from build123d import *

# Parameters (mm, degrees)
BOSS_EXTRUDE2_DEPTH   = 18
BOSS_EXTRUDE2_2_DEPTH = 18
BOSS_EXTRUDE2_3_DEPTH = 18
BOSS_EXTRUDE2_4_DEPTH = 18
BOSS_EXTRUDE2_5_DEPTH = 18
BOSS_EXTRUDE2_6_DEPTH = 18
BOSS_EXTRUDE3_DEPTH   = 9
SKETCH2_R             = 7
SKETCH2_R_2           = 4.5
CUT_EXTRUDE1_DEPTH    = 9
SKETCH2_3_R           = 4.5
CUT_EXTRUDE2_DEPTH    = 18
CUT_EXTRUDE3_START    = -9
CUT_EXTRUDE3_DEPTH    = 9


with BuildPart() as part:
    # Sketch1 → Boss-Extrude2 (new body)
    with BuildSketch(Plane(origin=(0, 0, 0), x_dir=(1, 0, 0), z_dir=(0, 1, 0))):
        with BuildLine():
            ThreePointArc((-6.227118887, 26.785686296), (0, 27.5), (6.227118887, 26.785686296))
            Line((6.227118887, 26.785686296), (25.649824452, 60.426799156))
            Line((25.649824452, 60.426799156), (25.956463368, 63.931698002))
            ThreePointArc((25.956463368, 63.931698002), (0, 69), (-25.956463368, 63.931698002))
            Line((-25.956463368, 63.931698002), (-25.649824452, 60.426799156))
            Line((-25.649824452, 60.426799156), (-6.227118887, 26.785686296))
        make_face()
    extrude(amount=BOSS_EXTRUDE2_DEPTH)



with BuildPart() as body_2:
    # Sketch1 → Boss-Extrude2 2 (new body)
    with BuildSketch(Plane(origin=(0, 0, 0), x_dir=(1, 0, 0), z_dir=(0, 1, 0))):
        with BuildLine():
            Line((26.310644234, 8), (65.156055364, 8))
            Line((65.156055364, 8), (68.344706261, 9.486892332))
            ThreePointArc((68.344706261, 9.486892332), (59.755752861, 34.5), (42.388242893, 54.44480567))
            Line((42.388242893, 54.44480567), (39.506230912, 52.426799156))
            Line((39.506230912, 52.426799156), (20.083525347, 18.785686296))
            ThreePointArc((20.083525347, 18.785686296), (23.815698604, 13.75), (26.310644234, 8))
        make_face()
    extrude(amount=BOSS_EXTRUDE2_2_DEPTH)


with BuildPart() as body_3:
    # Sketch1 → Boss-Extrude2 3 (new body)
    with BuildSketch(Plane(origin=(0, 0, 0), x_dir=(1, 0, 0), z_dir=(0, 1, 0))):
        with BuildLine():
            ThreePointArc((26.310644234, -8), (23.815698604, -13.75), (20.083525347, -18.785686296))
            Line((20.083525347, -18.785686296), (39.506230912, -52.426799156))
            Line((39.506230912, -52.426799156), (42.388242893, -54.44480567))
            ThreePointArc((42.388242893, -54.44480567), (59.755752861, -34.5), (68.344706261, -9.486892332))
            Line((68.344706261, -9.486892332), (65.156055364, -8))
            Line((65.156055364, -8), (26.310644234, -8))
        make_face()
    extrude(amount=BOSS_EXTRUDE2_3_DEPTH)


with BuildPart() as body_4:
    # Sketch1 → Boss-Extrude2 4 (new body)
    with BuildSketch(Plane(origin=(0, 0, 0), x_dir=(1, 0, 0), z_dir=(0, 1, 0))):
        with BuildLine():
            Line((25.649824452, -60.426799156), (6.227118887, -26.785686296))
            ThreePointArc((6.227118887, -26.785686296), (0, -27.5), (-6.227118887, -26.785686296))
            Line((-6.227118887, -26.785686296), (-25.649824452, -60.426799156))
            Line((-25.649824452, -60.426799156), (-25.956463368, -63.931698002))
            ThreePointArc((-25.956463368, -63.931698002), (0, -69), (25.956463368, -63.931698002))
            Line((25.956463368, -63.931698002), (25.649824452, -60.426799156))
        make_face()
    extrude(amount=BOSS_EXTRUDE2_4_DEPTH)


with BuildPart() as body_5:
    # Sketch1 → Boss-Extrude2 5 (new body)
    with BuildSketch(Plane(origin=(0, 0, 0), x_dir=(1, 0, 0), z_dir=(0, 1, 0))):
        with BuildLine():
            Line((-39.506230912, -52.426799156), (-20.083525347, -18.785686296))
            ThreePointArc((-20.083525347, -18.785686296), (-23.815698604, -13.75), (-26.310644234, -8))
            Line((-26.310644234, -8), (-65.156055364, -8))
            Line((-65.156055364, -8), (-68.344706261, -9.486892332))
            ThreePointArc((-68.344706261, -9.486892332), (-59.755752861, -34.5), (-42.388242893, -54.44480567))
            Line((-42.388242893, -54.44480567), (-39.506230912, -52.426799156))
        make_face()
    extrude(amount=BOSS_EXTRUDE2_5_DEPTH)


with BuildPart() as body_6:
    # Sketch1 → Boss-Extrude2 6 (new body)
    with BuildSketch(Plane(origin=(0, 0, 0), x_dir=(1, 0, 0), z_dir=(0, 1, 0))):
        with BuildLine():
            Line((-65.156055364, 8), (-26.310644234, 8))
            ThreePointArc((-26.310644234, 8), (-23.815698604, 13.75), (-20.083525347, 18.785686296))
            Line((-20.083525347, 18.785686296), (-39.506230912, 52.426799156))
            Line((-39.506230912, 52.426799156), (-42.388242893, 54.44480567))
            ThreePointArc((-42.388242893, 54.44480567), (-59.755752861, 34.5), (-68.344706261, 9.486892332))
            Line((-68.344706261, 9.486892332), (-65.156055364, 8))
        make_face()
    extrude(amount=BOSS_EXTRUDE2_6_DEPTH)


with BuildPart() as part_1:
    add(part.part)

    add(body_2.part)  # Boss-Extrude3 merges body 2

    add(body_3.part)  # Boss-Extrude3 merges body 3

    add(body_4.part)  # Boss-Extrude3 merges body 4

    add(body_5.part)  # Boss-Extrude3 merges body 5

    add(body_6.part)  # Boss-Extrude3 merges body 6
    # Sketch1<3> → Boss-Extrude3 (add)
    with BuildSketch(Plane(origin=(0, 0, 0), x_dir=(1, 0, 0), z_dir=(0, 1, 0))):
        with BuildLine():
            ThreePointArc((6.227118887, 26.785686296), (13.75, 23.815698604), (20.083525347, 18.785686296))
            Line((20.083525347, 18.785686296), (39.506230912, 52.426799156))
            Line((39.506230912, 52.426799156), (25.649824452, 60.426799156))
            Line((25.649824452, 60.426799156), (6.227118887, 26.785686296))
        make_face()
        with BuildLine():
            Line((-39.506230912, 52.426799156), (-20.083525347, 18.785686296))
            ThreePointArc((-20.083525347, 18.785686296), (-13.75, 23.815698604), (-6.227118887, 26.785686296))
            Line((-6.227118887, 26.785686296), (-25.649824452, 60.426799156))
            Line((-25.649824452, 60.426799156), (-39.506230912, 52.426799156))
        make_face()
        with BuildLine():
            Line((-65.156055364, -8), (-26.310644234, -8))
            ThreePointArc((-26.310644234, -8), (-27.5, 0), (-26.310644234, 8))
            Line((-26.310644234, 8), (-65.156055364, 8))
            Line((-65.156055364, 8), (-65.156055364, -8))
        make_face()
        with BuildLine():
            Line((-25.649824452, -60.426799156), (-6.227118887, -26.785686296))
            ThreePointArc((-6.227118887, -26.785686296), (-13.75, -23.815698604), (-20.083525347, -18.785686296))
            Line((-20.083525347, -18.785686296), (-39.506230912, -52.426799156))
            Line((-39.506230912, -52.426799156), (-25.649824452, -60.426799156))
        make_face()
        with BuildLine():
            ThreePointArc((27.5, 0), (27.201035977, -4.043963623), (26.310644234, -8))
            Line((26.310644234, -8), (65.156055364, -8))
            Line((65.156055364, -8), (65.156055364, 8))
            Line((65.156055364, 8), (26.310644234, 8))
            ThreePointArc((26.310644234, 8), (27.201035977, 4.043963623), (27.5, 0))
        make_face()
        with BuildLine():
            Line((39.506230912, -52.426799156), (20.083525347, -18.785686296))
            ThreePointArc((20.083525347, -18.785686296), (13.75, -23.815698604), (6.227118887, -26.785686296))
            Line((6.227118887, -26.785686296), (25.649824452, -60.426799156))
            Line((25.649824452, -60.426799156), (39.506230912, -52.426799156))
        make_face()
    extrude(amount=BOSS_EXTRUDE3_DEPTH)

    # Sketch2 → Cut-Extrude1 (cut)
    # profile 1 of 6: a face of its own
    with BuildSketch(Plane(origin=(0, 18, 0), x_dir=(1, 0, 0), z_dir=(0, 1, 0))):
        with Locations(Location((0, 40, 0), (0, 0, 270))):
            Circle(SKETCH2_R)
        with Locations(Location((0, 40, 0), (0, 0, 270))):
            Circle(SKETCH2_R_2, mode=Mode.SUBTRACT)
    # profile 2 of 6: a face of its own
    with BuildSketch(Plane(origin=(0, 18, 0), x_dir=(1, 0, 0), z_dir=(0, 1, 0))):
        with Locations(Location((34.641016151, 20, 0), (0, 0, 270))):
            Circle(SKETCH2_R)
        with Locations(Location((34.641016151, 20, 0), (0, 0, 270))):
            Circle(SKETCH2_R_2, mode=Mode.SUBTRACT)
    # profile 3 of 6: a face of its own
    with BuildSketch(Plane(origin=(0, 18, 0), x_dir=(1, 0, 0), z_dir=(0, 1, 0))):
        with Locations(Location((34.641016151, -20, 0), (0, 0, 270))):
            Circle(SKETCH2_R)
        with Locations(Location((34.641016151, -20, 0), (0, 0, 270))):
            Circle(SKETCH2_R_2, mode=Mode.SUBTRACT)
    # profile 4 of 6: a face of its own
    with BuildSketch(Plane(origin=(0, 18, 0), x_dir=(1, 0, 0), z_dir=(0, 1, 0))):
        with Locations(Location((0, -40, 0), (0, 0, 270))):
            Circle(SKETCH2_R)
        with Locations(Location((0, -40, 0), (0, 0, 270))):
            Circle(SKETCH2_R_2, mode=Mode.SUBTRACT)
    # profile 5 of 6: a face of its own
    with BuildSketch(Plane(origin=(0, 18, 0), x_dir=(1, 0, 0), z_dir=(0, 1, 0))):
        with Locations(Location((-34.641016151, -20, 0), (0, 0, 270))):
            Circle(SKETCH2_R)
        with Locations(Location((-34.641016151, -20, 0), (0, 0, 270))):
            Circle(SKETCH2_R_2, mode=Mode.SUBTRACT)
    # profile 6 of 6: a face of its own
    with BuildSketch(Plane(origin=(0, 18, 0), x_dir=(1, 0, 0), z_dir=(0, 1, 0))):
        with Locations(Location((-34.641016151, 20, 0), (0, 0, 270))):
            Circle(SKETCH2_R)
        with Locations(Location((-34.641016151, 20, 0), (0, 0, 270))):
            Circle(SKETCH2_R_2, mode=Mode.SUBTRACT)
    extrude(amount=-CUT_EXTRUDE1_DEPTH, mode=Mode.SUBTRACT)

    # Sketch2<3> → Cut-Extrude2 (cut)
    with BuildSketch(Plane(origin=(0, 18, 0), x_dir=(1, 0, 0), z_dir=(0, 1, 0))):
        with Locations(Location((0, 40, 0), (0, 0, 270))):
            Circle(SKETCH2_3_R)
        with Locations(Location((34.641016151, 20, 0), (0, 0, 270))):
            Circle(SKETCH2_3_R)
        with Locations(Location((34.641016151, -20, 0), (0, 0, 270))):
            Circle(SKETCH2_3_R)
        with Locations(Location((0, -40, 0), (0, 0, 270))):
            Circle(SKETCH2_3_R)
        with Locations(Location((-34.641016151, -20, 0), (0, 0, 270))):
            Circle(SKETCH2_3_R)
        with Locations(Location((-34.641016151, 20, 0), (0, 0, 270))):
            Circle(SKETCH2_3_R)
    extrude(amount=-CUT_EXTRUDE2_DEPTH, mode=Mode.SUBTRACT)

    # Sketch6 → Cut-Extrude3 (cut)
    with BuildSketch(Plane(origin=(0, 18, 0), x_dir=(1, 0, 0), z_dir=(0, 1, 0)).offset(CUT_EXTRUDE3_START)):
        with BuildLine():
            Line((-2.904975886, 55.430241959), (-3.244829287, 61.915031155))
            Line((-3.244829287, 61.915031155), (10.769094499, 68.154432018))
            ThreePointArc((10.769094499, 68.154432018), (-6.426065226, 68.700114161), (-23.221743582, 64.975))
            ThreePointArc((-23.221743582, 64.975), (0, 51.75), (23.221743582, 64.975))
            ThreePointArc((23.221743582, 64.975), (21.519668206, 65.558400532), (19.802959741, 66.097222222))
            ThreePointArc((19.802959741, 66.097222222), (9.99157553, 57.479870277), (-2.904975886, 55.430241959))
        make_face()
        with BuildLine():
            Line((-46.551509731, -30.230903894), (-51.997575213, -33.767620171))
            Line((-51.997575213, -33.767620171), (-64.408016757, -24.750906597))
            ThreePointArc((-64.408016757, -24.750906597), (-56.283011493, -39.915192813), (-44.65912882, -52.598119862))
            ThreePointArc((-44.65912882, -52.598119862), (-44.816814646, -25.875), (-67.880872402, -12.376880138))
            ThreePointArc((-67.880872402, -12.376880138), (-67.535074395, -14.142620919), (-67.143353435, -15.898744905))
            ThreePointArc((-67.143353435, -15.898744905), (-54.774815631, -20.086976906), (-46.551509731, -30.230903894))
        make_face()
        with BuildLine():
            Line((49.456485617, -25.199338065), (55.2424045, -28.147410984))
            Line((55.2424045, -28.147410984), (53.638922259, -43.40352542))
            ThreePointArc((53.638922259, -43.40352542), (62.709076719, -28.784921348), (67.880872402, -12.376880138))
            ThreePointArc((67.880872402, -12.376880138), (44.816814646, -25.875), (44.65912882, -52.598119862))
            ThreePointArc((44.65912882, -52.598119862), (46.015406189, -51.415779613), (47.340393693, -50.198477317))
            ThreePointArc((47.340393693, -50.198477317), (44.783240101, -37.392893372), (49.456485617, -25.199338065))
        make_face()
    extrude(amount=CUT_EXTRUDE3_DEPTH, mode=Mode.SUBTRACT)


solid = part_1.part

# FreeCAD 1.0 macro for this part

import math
import FreeCAD as App
import Part
import Sketcher
from FreeCAD import Vector
Q = App.Units.Quantity

doc = App.newDocument("Part")
body = doc.addObject("PartDesign::Body", "Body")

sketch1 = body.newObject("Sketcher::SketchObject", "Sketch")
sketch1.AttachmentSupport = (doc.getObject("XZ_Plane"), [""])
sketch1.MapMode = "FlatFace"
sketch1.addGeometry([
    Part.ArcOfCircle(Part.Circle(Vector(0, 0, 0), Vector(0, 0, 1), 27.5), math.radians(-103), math.radians(-77)),
    Part.LineSegment(Vector(6.2, -26.8, 0), Vector(25.6, -60.4, 0)),
    Part.LineSegment(Vector(25.6, -60.4, 0), Vector(26, -63.9, 0)),
    Part.ArcOfCircle(Part.Circle(Vector(0, 0, 0), Vector(0, 0, 1), 69), math.radians(-112), math.radians(-68)),
    Part.LineSegment(Vector(-26, -63.9, 0), Vector(-25.6, -60.4, 0)),
    Part.LineSegment(Vector(-25.6, -60.4, 0), Vector(-6.2, -26.8, 0)),
], False)
sketch1.addConstraint([
    Sketcher.Constraint("Coincident", 0, 2, 1, 1),
    Sketcher.Constraint("Coincident", 1, 2, 2, 1),
    Sketcher.Constraint("Coincident", 2, 2, 3, 2),
    Sketcher.Constraint("Coincident", 3, 1, 4, 1),
    Sketcher.Constraint("Coincident", 4, 2, 5, 1),
    Sketcher.Constraint("Coincident", 5, 2, 0, 1),
    Sketcher.Constraint("Coincident", 0, 3, -1, 1),
    Sketcher.Constraint("Coincident", 3, 3, -1, 1),
    Sketcher.Constraint("Symmetric", 1, 2, 4, 2, -2),
    Sketcher.Constraint("Horizontal", 2, 2, 3, 1),
    Sketcher.Constraint("Horizontal", 0, 2, 5, 2),
    Sketcher.Constraint("Radius", 3, 69.0),
    Sketcher.Constraint("Radius", 0, 27.5),
    Sketcher.Constraint("Angle", 1, Q("-60 deg")),
    Sketcher.Constraint("Angle", 2, Q("-85 deg")),
    Sketcher.Constraint("DistanceY", 1, 2, -1, 1, 60.426799),
    Sketcher.Constraint("DistanceY", 2, 2, -1, 1, 63.931698),
])
pad1 = body.newObject("PartDesign::Pad", "Pad")
pad1.Profile = sketch1
pad1.Length = 18
pad1.Reversed = True
body2 = doc.addObject("PartDesign::Body", "Body001")

sketch2 = body2.newObject("Sketcher::SketchObject", "Sketch001")
sketch2.AttachmentSupport = (doc.getObject("XZ_Plane001"), [""])
sketch2.MapMode = "FlatFace"
sketch2.addGeometry([
    Part.LineSegment(Vector(26.3, -8, 0), Vector(65.2, -8, 0)),
    Part.LineSegment(Vector(65.2, -8, 0), Vector(68.3, -9.5, 0)),
    Part.ArcOfCircle(Part.Circle(Vector(0, 0, 0), Vector(0, 0, 1), 69), math.radians(-52), math.radians(-8)),
    Part.LineSegment(Vector(42.4, -54.4, 0), Vector(39.5, -52.4, 0)),
    Part.LineSegment(Vector(39.5, -52.4, 0), Vector(20.1, -18.8, 0)),
    Part.ArcOfCircle(Part.Circle(Vector(0, 0, 0), Vector(0, 0, 1), 27.5), math.radians(-43), math.radians(-17)),
], False)
sketch2.addConstraint([
    Sketcher.Constraint("Coincident", 0, 2, 1, 1),
    Sketcher.Constraint("Coincident", 1, 2, 2, 2),
    Sketcher.Constraint("Coincident", 2, 1, 3, 1),
    Sketcher.Constraint("Coincident", 3, 2, 4, 1),
    Sketcher.Constraint("Coincident", 4, 2, 5, 1),
    Sketcher.Constraint("Coincident", 5, 2, 0, 1),
    Sketcher.Constraint("Horizontal", 0),
    Sketcher.Constraint("Coincident", 2, 3, -1, 1),
    Sketcher.Constraint("Coincident", 5, 3, -1, 1),
    Sketcher.Constraint("Equal", 1, 3),
    Sketcher.Constraint("Radius", 2, 69.0),
    Sketcher.Constraint("Radius", 5, 27.5),
    Sketcher.Constraint("Angle", 1, Q("-25 deg")),
    Sketcher.Constraint("Angle", 3, Q("145 deg")),
    Sketcher.Constraint("Angle", 4, Q("120 deg")),
    Sketcher.Constraint("DistanceY", 0, 2, -1, 1, 8.0),
    Sketcher.Constraint("DistanceX", 0, 1, 0, 2, 38.845411),
    Sketcher.Constraint("DistanceY", 3, 2, -1, 1, 52.426799),
])
pad2 = body2.newObject("PartDesign::Pad", "Pad001")
pad2.Profile = sketch2
pad2.Length = 18
pad2.Reversed = True
body3 = doc.addObject("PartDesign::Body", "Body002")

sketch3 = body3.newObject("Sketcher::SketchObject", "Sketch002")
sketch3.AttachmentSupport = (doc.getObject("XZ_Plane002"), [""])
sketch3.MapMode = "FlatFace"
sketch3.addGeometry([
    Part.ArcOfCircle(Part.Circle(Vector(0, 0, 0), Vector(0, 0, 1), 27.5), math.radians(17), math.radians(43)),
    Part.LineSegment(Vector(20.1, 18.8, 0), Vector(39.5, 52.4, 0)),
    Part.LineSegment(Vector(39.5, 52.4, 0), Vector(42.4, 54.4, 0)),
    Part.ArcOfCircle(Part.Circle(Vector(0, 0, 0), Vector(0, 0, 1), 69), math.radians(8), math.radians(52)),
    Part.LineSegment(Vector(68.3, 9.5, 0), Vector(65.2, 8, 0)),
    Part.LineSegment(Vector(65.2, 8, 0), Vector(26.3, 8, 0)),
], False)
sketch3.addConstraint([
    Sketcher.Constraint("Coincident", 0, 2, 1, 1),
    Sketcher.Constraint("Coincident", 1, 2, 2, 1),
    Sketcher.Constraint("Coincident", 2, 2, 3, 2),
    Sketcher.Constraint("Coincident", 3, 1, 4, 1),
    Sketcher.Constraint("Coincident", 4, 2, 5, 1),
    Sketcher.Constraint("Coincident", 5, 2, 0, 1),
    Sketcher.Constraint("Horizontal", 5),
    Sketcher.Constraint("Coincident", 0, 3, -1, 1),
    Sketcher.Constraint("Coincident", 3, 3, -1, 1),
    Sketcher.Constraint("Equal", 2, 4),
    Sketcher.Constraint("Radius", 3, 69.0),
    Sketcher.Constraint("Radius", 0, 27.5),
    Sketcher.Constraint("Angle", 1, Q("60 deg")),
    Sketcher.Constraint("Angle", 2, Q("35 deg")),
    Sketcher.Constraint("Angle", 4, Q("-155 deg")),
    Sketcher.Constraint("DistanceY", -1, 1, 4, 2, 8.0),
    Sketcher.Constraint("DistanceX", 5, 2, 5, 1, 38.845411),
    Sketcher.Constraint("DistanceY", -1, 1, 1, 2, 52.426799),
])
pad3 = body3.newObject("PartDesign::Pad", "Pad002")
pad3.Profile = sketch3
pad3.Length = 18
pad3.Reversed = True
body4 = doc.addObject("PartDesign::Body", "Body003")

sketch4 = body4.newObject("Sketcher::SketchObject", "Sketch003")
sketch4.AttachmentSupport = (doc.getObject("XZ_Plane003"), [""])
sketch4.MapMode = "FlatFace"
sketch4.addGeometry([
    Part.LineSegment(Vector(25.6, 60.4, 0), Vector(6.2, 26.8, 0)),
    Part.ArcOfCircle(Part.Circle(Vector(0, 0, 0), Vector(0, 0, 1), 27.5), math.radians(77), math.radians(103)),
    Part.LineSegment(Vector(-6.2, 26.8, 0), Vector(-25.6, 60.4, 0)),
    Part.LineSegment(Vector(-25.6, 60.4, 0), Vector(-26, 63.9, 0)),
    Part.ArcOfCircle(Part.Circle(Vector(0, 0, 0), Vector(0, 0, 1), 69), math.radians(68), math.radians(112)),
    Part.LineSegment(Vector(26, 63.9, 0), Vector(25.6, 60.4, 0)),
], False)
sketch4.addConstraint([
    Sketcher.Constraint("Coincident", 0, 2, 1, 1),
    Sketcher.Constraint("Coincident", 1, 2, 2, 1),
    Sketcher.Constraint("Coincident", 2, 2, 3, 1),
    Sketcher.Constraint("Coincident", 3, 2, 4, 2),
    Sketcher.Constraint("Coincident", 4, 1, 5, 1),
    Sketcher.Constraint("Coincident", 5, 2, 0, 1),
    Sketcher.Constraint("Coincident", 1, 3, -1, 1),
    Sketcher.Constraint("Coincident", 4, 3, -1, 1),
    Sketcher.Constraint("Symmetric", 2, 2, 5, 2, -2),
    Sketcher.Constraint("Horizontal", 0, 2, 1, 2),
    Sketcher.Constraint("Horizontal", 3, 2, 4, 1),
    Sketcher.Constraint("Radius", 4, 69.0),
    Sketcher.Constraint("Radius", 1, 27.5),
    Sketcher.Constraint("Angle", 0, Q("-120 deg")),
    Sketcher.Constraint("Angle", 3, Q("95 deg")),
    Sketcher.Constraint("DistanceY", -1, 1, 2, 2, 60.426799),
    Sketcher.Constraint("DistanceY", -1, 1, 3, 2, 63.931698),
])
pad4 = body4.newObject("PartDesign::Pad", "Pad003")
pad4.Profile = sketch4
pad4.Length = 18
pad4.Reversed = True
body5 = doc.addObject("PartDesign::Body", "Body004")

sketch5 = body5.newObject("Sketcher::SketchObject", "Sketch004")
sketch5.AttachmentSupport = (doc.getObject("XZ_Plane004"), [""])
sketch5.MapMode = "FlatFace"
sketch5.addGeometry([
    Part.LineSegment(Vector(-39.5, 52.4, 0), Vector(-20.1, 18.8, 0)),
    Part.ArcOfCircle(Part.Circle(Vector(0, 0, 0), Vector(0, 0, 1), 27.5), math.radians(137), math.radians(163)),
    Part.LineSegment(Vector(-26.3, 8, 0), Vector(-65.2, 8, 0)),
    Part.LineSegment(Vector(-65.2, 8, 0), Vector(-68.3, 9.5, 0)),
    Part.ArcOfCircle(Part.Circle(Vector(0, 0, 0), Vector(0, 0, 1), 69), math.radians(128), math.radians(172)),
    Part.LineSegment(Vector(-42.4, 54.4, 0), Vector(-39.5, 52.4, 0)),
], False)
sketch5.addConstraint([
    Sketcher.Constraint("Coincident", 0, 2, 1, 1),
    Sketcher.Constraint("Coincident", 1, 2, 2, 1),
    Sketcher.Constraint("Coincident", 2, 2, 3, 1),
    Sketcher.Constraint("Coincident", 3, 2, 4, 2),
    Sketcher.Constraint("Coincident", 4, 1, 5, 1),
    Sketcher.Constraint("Coincident", 5, 2, 0, 1),
    Sketcher.Constraint("Horizontal", 2),
    Sketcher.Constraint("Coincident", 1, 3, -1, 1),
    Sketcher.Constraint("Coincident", 4, 3, -1, 1),
    Sketcher.Constraint("Equal", 3, 5),
    Sketcher.Constraint("Radius", 4, 69.0),
    Sketcher.Constraint("Radius", 1, 27.5),
    Sketcher.Constraint("Angle", 0, Q("-60 deg")),
    Sketcher.Constraint("Angle", 3, Q("155 deg")),
    Sketcher.Constraint("Angle", 5, Q("-35 deg")),
    Sketcher.Constraint("DistanceY", -1, 1, 1, 2, 8.0),
    Sketcher.Constraint("DistanceX", 2, 2, 2, 1, 38.845411),
    Sketcher.Constraint("DistanceY", -1, 1, 5, 2, 52.426799),
])
pad5 = body5.newObject("PartDesign::Pad", "Pad004")
pad5.Profile = sketch5
pad5.Length = 18
pad5.Reversed = True
body6 = doc.addObject("PartDesign::Body", "Body005")

sketch6 = body6.newObject("Sketcher::SketchObject", "Sketch005")
sketch6.AttachmentSupport = (doc.getObject("XZ_Plane005"), [""])
sketch6.MapMode = "FlatFace"
sketch6.addGeometry([
    Part.LineSegment(Vector(-65.2, -8, 0), Vector(-26.3, -8, 0)),
    Part.ArcOfCircle(Part.Circle(Vector(0, 0, 0), Vector(0, 0, 1), 27.5), math.radians(-163), math.radians(-137)),
    Part.LineSegment(Vector(-20.1, -18.8, 0), Vector(-39.5, -52.4, 0)),
    Part.LineSegment(Vector(-39.5, -52.4, 0), Vector(-42.4, -54.4, 0)),
    Part.ArcOfCircle(Part.Circle(Vector(0, 0, 0), Vector(0, 0, 1), 69), math.radians(-172), math.radians(-128)),
    Part.LineSegment(Vector(-68.3, -9.5, 0), Vector(-65.2, -8, 0)),
], False)
sketch6.addConstraint([
    Sketcher.Constraint("Coincident", 0, 2, 1, 1),
    Sketcher.Constraint("Coincident", 1, 2, 2, 1),
    Sketcher.Constraint("Coincident", 2, 2, 3, 1),
    Sketcher.Constraint("Coincident", 3, 2, 4, 2),
    Sketcher.Constraint("Coincident", 4, 1, 5, 1),
    Sketcher.Constraint("Coincident", 5, 2, 0, 1),
    Sketcher.Constraint("Horizontal", 0),
    Sketcher.Constraint("Coincident", 1, 3, -1, 1),
    Sketcher.Constraint("Coincident", 4, 3, -1, 1),
    Sketcher.Constraint("Equal", 3, 5),
    Sketcher.Constraint("Radius", 4, 69.0),
    Sketcher.Constraint("Radius", 1, 27.5),
    Sketcher.Constraint("Angle", 2, Q("-120 deg")),
    Sketcher.Constraint("Angle", 3, Q("-145 deg")),
    Sketcher.Constraint("Angle", 5, Q("25 deg")),
    Sketcher.Constraint("DistanceY", 0, 2, -1, 1, 8.0),
    Sketcher.Constraint("DistanceX", 0, 1, 0, 2, 38.845411),
    Sketcher.Constraint("DistanceY", 2, 2, -1, 1, 52.426799),
])
pad6 = body6.newObject("PartDesign::Pad", "Pad005")
pad6.Profile = sketch6
pad6.Length = 18
pad6.Reversed = True
body.AllowCompound = True
doc.recompute()

boolean = body.newObject("PartDesign::Boolean", "Boolean")
boolean.Type = "Fuse"
boolean.addObjects([body2])
doc.recompute()

boolean2 = body.newObject("PartDesign::Boolean", "Boolean001")
boolean2.Type = "Fuse"
boolean2.addObjects([body3])
doc.recompute()

boolean3 = body.newObject("PartDesign::Boolean", "Boolean002")
boolean3.Type = "Fuse"
boolean3.addObjects([body4])
doc.recompute()

boolean4 = body.newObject("PartDesign::Boolean", "Boolean003")
boolean4.Type = "Fuse"
boolean4.addObjects([body5])
doc.recompute()

boolean5 = body.newObject("PartDesign::Boolean", "Boolean004")
boolean5.Type = "Fuse"
boolean5.addObjects([body6])

sketch7 = body.newObject("Sketcher::SketchObject", "Sketch006")
sketch7.AttachmentSupport = (doc.getObject("XZ_Plane"), [""])
sketch7.MapMode = "FlatFace"
sketch7.addGeometry([
    Part.ArcOfCircle(Part.Circle(Vector(0, 0, 0), Vector(0, 0, 1), 27), math.radians(-77), math.radians(-43)),
    Part.LineSegment(Vector(20, -19, 0), Vector(40, -52, 0)),
    Part.LineSegment(Vector(40, -52, 0), Vector(26, -60, 0)),
    Part.LineSegment(Vector(26, -60, 0), Vector(6, -27, 0)),
    Part.LineSegment(Vector(-40, -52, 0), Vector(-20, -19, 0)),
    Part.ArcOfCircle(Part.Circle(Vector(0, 0, 0), Vector(0, 0, 1), 27), math.radians(-137), math.radians(-103)),
    Part.LineSegment(Vector(-6, -27, 0), Vector(-26, -60, 0)),
    Part.LineSegment(Vector(-26, -60, 0), Vector(-40, -52, 0)),
    Part.LineSegment(Vector(-65, 8, 0), Vector(-26, 8, 0)),
    Part.ArcOfCircle(Part.Circle(Vector(0, 0, 0), Vector(0, 0, 1), 28), math.radians(163), math.radians(197)),
    Part.LineSegment(Vector(-26, -8, 0), Vector(-65, -8, 0)),
    Part.LineSegment(Vector(-65, -8, 0), Vector(-65, 8, 0)),
    Part.LineSegment(Vector(-26, 60, 0), Vector(-6, 27, 0)),
    Part.ArcOfCircle(Part.Circle(Vector(0, 0, 0), Vector(0, 0, 1), 27), math.radians(103), math.radians(137)),
    Part.LineSegment(Vector(-20, 19, 0), Vector(-40, 52, 0)),
    Part.LineSegment(Vector(-40, 52, 0), Vector(-26, 60, 0)),
    Part.ArcOfCircle(Part.Circle(Vector(0, 0, 0), Vector(0, 0, 1), 27), math.radians(0), math.radians(16.91)),
    Part.LineSegment(Vector(26, 8, 0), Vector(65, 8, 0)),
    Part.LineSegment(Vector(65, 8, 0), Vector(65, -8, 0)),
    Part.LineSegment(Vector(65, -8, 0), Vector(26, -8, 0)),
    Part.ArcOfCircle(Part.Circle(Vector(0, 0, 0), Vector(0, 0, 1), 27), math.radians(-16.91), math.radians(0)),
    Part.LineSegment(Vector(40, 52, 0), Vector(20, 19, 0)),
    Part.ArcOfCircle(Part.Circle(Vector(0, 0, 0), Vector(0, 0, 1), 27), math.radians(43), math.radians(77)),
    Part.LineSegment(Vector(6, 27, 0), Vector(26, 60, 0)),
    Part.LineSegment(Vector(26, 60, 0), Vector(40, 52, 0)),
], False)
sketch7.addConstraint([
    Sketcher.Constraint("Coincident", 0, 2, 1, 1),
    Sketcher.Constraint("Coincident", 1, 2, 2, 1),
    Sketcher.Constraint("Coincident", 2, 2, 3, 1),
    Sketcher.Constraint("Coincident", 3, 2, 0, 1),
    Sketcher.Constraint("Coincident", 4, 2, 5, 1),
    Sketcher.Constraint("Coincident", 5, 2, 6, 1),
    Sketcher.Constraint("Coincident", 6, 2, 7, 1),
    Sketcher.Constraint("Coincident", 7, 2, 4, 1),
    Sketcher.Constraint("Coincident", 8, 2, 9, 1),
    Sketcher.Constraint("Coincident", 9, 2, 10, 1),
    Sketcher.Constraint("Coincident", 10, 2, 11, 1),
    Sketcher.Constraint("Coincident", 11, 2, 8, 1),
    Sketcher.Constraint("Coincident", 12, 2, 13, 1),
    Sketcher.Constraint("Coincident", 13, 2, 14, 1),
    Sketcher.Constraint("Coincident", 14, 2, 15, 1),
    Sketcher.Constraint("Coincident", 15, 2, 12, 1),
    Sketcher.Constraint("Coincident", 16, 2, 17, 1),
    Sketcher.Constraint("Coincident", 17, 2, 18, 1),
    Sketcher.Constraint("Coincident", 18, 2, 19, 1),
    Sketcher.Constraint("Coincident", 19, 2, 20, 1),
    Sketcher.Constraint("Tangent", 20, 2, 16, 1),
    Sketcher.Constraint("Coincident", 21, 2, 22, 1),
    Sketcher.Constraint("Coincident", 22, 2, 23, 1),
    Sketcher.Constraint("Coincident", 23, 2, 24, 1),
    Sketcher.Constraint("Coincident", 24, 2, 21, 1),
    Sketcher.Constraint("Horizontal", 8),
    Sketcher.Constraint("Horizontal", 10),
    Sketcher.Constraint("Vertical", 11),
    Sketcher.Constraint("Horizontal", 17),
    Sketcher.Constraint("Vertical", 18),
    Sketcher.Constraint("Horizontal", 19),
    Sketcher.Constraint("Coincident", 0, 3, -1, 1),
    Sketcher.Constraint("Coincident", 5, 3, -1, 1),
    Sketcher.Constraint("Coincident", 9, 3, -1, 1),
    Sketcher.Constraint("Coincident", 13, 3, -1, 1),
    Sketcher.Constraint("Coincident", 16, 3, -1, 1),
    Sketcher.Constraint("Coincident", 22, 3, -1, 1),
    Sketcher.Constraint("Equal", 0, 5),
    Sketcher.Constraint("Equal", 5, 9),
    Sketcher.Constraint("Equal", 9, 13),
    Sketcher.Constraint("Equal", 13, 16),
    Sketcher.Constraint("Equal", 16, 20),
    Sketcher.Constraint("Equal", 20, 22),
    Sketcher.Constraint("Symmetric", 1, 2, 14, 2, -1, 1),
    Sketcher.Constraint("Symmetric", 2, 2, 15, 2, -1, 1),
    Sketcher.Constraint("Symmetric", 10, 2, 17, 2, -1, 1),
    Sketcher.Constraint("Symmetric", 6, 2, 23, 2, -1, 1),
    Sketcher.Constraint("Symmetric", 7, 2, 24, 2, -1, 1),
    Sketcher.Constraint("Symmetric", 2, 2, 6, 2, -2),
    Sketcher.Constraint("Symmetric", 1, 2, 7, 2, -2),
    Sketcher.Constraint("PointOnObject", 20, 2, -1),
    Sketcher.Constraint("Perpendicular", 1, 2),
    Sketcher.Constraint("Perpendicular", 2, 3),
    Sketcher.Constraint("Parallel", 4, 6),
    Sketcher.Constraint("Perpendicular", 6, 7),
    Sketcher.Constraint("Parallel", 3, 12),
    Sketcher.Constraint("Parallel", 12, 14),
    Sketcher.Constraint("Perpendicular", 7, 21),
    Sketcher.Constraint("Parallel", 21, 23),
    Sketcher.Constraint("Horizontal", 11, 2, 16, 2),
    Sketcher.Constraint("Horizontal", 10, 2, 18, 2),
    Sketcher.Constraint("Equal", 1, 3),
    Sketcher.Constraint("Radius", 0, 27.5),
    Sketcher.Constraint("DistanceY", 11, 1, 11, 2, 16.0),
    Sketcher.Constraint("Angle", 1, Q("-60 deg")),
    Sketcher.Constraint("Distance", 2, 16.0),
    Sketcher.Constraint("DistanceX", 8, 1, 8, 2, 38.845411),
    Sketcher.Constraint("DistanceY", 1, 2, -1, 1, 52.426799),
])
pad7 = body.newObject("PartDesign::Pad", "Pad006")
pad7.Profile = sketch7
pad7.Length = 9
pad7.Reversed = True

sketch8 = body.newObject("Sketcher::SketchObject", "Sketch007")
sketch8.AttachmentSupport = (doc.getObject("XZ_Plane"), [""])
sketch8.MapMode = "FlatFace"
sketch8.AttachmentOffset = App.Placement(Vector(0, 0, -18), App.Rotation())
sketch8.addGeometry([
    Part.Circle(Vector(0, -40, 0), Vector(0, 0, 1), 7),
    Part.Circle(Vector(0, -40, 0), Vector(0, 0, 1), 4.5),
    Part.Circle(Vector(34.6, -20, 0), Vector(0, 0, 1), 7),
    Part.Circle(Vector(34.6, -20, 0), Vector(0, 0, 1), 4.5),
    Part.Circle(Vector(34.6, 20, 0), Vector(0, 0, 1), 7),
    Part.Circle(Vector(34.6, 20, 0), Vector(0, 0, 1), 4.5),
    Part.Circle(Vector(0, 40, 0), Vector(0, 0, 1), 7),
    Part.Circle(Vector(0, 40, 0), Vector(0, 0, 1), 4.5),
    Part.Circle(Vector(-34.6, 20, 0), Vector(0, 0, 1), 7),
    Part.Circle(Vector(-34.6, 20, 0), Vector(0, 0, 1), 4.5),
    Part.Circle(Vector(-34.6, -20, 0), Vector(0, 0, 1), 7),
    Part.Circle(Vector(-34.6, -20, 0), Vector(0, 0, 1), 4.5),
], False)
sketch8.addConstraint([
    Sketcher.Constraint("Coincident", 1, 3, 0, 3),
    Sketcher.Constraint("Coincident", 3, 3, 2, 3),
    Sketcher.Constraint("Coincident", 5, 3, 4, 3),
    Sketcher.Constraint("Coincident", 7, 3, 6, 3),
    Sketcher.Constraint("Coincident", 9, 3, 8, 3),
    Sketcher.Constraint("Coincident", 11, 3, 10, 3),
    Sketcher.Constraint("Equal", 0, 2),
    Sketcher.Constraint("Equal", 1, 3),
    Sketcher.Constraint("Equal", 2, 4),
    Sketcher.Constraint("Equal", 3, 5),
    Sketcher.Constraint("Equal", 4, 6),
    Sketcher.Constraint("Equal", 5, 7),
    Sketcher.Constraint("Equal", 6, 8),
    Sketcher.Constraint("Equal", 7, 9),
    Sketcher.Constraint("Equal", 8, 10),
    Sketcher.Constraint("Equal", 9, 11),
    Sketcher.Constraint("Symmetric", 0, 3, 6, 3, -1, 1),
    Sketcher.Constraint("Symmetric", 2, 3, 8, 3, -1, 1),
    Sketcher.Constraint("Symmetric", 4, 3, 10, 3, -1, 1),
    Sketcher.Constraint("Symmetric", 4, 3, 8, 3, -2),
    Sketcher.Constraint("PointOnObject", 0, 3, -2),
    Sketcher.Constraint("Diameter", 0, 14.0),
    Sketcher.Constraint("Diameter", 1, 9.0),
    Sketcher.Constraint("DistanceY", 0, 3, -1, 1, 40.0),
    Sketcher.Constraint("DistanceY", 2, 3, -1, 1, 20.0),
    Sketcher.Constraint("DistanceX", -1, 1, 2, 3, 34.641016),
])
pocket1 = body.newObject("PartDesign::Pocket", "Pocket")
pocket1.Profile = sketch8
pocket1.Length = 9
pocket1.Reversed = True

sketch9 = body.newObject("Sketcher::SketchObject", "Sketch008")
sketch9.AttachmentSupport = (doc.getObject("XZ_Plane"), [""])
sketch9.MapMode = "FlatFace"
sketch9.AttachmentOffset = App.Placement(Vector(0, 0, -18), App.Rotation())
sketch9.addGeometry([
    Part.Circle(Vector(0, -40, 0), Vector(0, 0, 1), 4.5),
    Part.Circle(Vector(34.6, -20, 0), Vector(0, 0, 1), 4.5),
    Part.Circle(Vector(34.6, 20, 0), Vector(0, 0, 1), 4.5),
    Part.Circle(Vector(0, 40, 0), Vector(0, 0, 1), 4.5),
    Part.Circle(Vector(-34.6, 20, 0), Vector(0, 0, 1), 4.5),
    Part.Circle(Vector(-34.6, -20, 0), Vector(0, 0, 1), 4.5),
], False)
sketch9.addConstraint([
    Sketcher.Constraint("Equal", 0, 1),
    Sketcher.Constraint("Equal", 1, 2),
    Sketcher.Constraint("Equal", 2, 3),
    Sketcher.Constraint("Equal", 3, 4),
    Sketcher.Constraint("Equal", 4, 5),
    Sketcher.Constraint("Symmetric", 0, 3, 3, 3, -1, 1),
    Sketcher.Constraint("Symmetric", 1, 3, 4, 3, -1, 1),
    Sketcher.Constraint("Symmetric", 2, 3, 5, 3, -1, 1),
    Sketcher.Constraint("Symmetric", 2, 3, 4, 3, -2),
    Sketcher.Constraint("PointOnObject", 0, 3, -2),
    Sketcher.Constraint("Diameter", 0, 9.0),
    Sketcher.Constraint("DistanceY", 0, 3, -1, 1, 40.0),
    Sketcher.Constraint("DistanceY", 1, 3, -1, 1, 20.0),
    Sketcher.Constraint("DistanceX", -1, 1, 1, 3, 34.641016),
])
pocket2 = body.newObject("PartDesign::Pocket", "Pocket001")
pocket2.Profile = sketch9
pocket2.Length = 18
pocket2.Reversed = True

sketch10 = body.newObject("Sketcher::SketchObject", "Sketch009")
sketch10.AttachmentSupport = (doc.getObject("XZ_Plane"), [""])
sketch10.MapMode = "FlatFace"
sketch10.AttachmentOffset = App.Placement(Vector(0, 0, -9), App.Rotation())
sketch10.addGeometry([
    Part.LineSegment(Vector(-2.9, -55.4, 0), Vector(-3.2, -61.9, 0)),
    Part.LineSegment(Vector(-3.2, -61.9, 0), Vector(10.8, -68.2, 0)),
    Part.ArcOfCircle(Part.Circle(Vector(0, 0, 0), Vector(0, 0, 1), 69), math.radians(-110), math.radians(-81)),
    Part.ArcOfCircle(Part.Circle(Vector(0, -78.8, 0), Vector(0, 0, 1), 27), math.radians(31), math.radians(149)),
    Part.ArcOfCircle(Part.Circle(Vector(0, 0, 0), Vector(0, 0, 1), 69), math.radians(-73.32), math.radians(-70.33)),
    Part.ArcOfCircle(Part.Circle(Vector(0, -78.7, 0), Vector(0, 0, 1), 23.5), math.radians(33), math.radians(97)),
    Part.LineSegment(Vector(-46.6, 30.2, 0), Vector(-52, 33.8, 0)),
    Part.LineSegment(Vector(-52, 33.8, 0), Vector(-64.4, 24.8, 0)),
    Part.ArcOfCircle(Part.Circle(Vector(0, 0, 0), Vector(0, 0, 1), 69), math.radians(130), math.radians(159)),
    Part.ArcOfCircle(Part.Circle(Vector(-68.2, 39.4, 0), Vector(0, 0, 1), 27), math.radians(-89), math.radians(29)),
    Part.ArcOfCircle(Part.Circle(Vector(0, 0, 0), Vector(0, 0, 1), 69), math.radians(166.68), math.radians(169.67)),
    Part.ArcOfCircle(Part.Circle(Vector(-68.2, 39.4, 0), Vector(0, 0, 1), 23.5), math.radians(-87), math.radians(-23)),
    Part.LineSegment(Vector(49.5, 25.2, 0), Vector(55.2, 28.1, 0)),
    Part.LineSegment(Vector(55.2, 28.1, 0), Vector(53.6, 43.4, 0)),
    Part.ArcOfCircle(Part.Circle(Vector(0, 0, 0), Vector(0, 0, 1), 69), math.radians(10), math.radians(39)),
    Part.ArcOfCircle(Part.Circle(Vector(68.2, 39.4, 0), Vector(0, 0, 1), 27), math.radians(151), math.radians(269)),
    Part.ArcOfCircle(Part.Circle(Vector(0, 0, 0), Vector(0, 0, 1), 69), math.radians(46.68), math.radians(49.67)),
    Part.ArcOfCircle(Part.Circle(Vector(68.2, 39.4, 0), Vector(0, 0, 1), 23.5), math.radians(153), math.radians(217)),
], False)
sketch10.addConstraint([
    Sketcher.Constraint("Coincident", 0, 2, 1, 1),
    Sketcher.Constraint("Coincident", 1, 2, 2, 2),
    Sketcher.Constraint("Coincident", 2, 1, 3, 2),
    Sketcher.Constraint("Coincident", 3, 1, 4, 2),
    Sketcher.Constraint("Coincident", 4, 1, 5, 1),
    Sketcher.Constraint("Coincident", 5, 2, 0, 1),
    Sketcher.Constraint("Coincident", 6, 2, 7, 1),
    Sketcher.Constraint("Coincident", 7, 2, 8, 2),
    Sketcher.Constraint("Coincident", 8, 1, 9, 2),
    Sketcher.Constraint("Coincident", 9, 1, 10, 2),
    Sketcher.Constraint("Coincident", 10, 1, 11, 1),
    Sketcher.Constraint("Coincident", 11, 2, 6, 1),
    Sketcher.Constraint("Coincident", 12, 2, 13, 1),
    Sketcher.Constraint("Coincident", 13, 2, 14, 2),
    Sketcher.Constraint("Coincident", 14, 1, 15, 2),
    Sketcher.Constraint("Coincident", 15, 1, 16, 2),
    Sketcher.Constraint("Coincident", 16, 1, 17, 1),
    Sketcher.Constraint("Coincident", 17, 2, 12, 1),
    Sketcher.Constraint("Coincident", 2, 3, -1, 1),
    Sketcher.Constraint("Coincident", 4, 3, -1, 1),
    Sketcher.Constraint("Coincident", 8, 3, -1, 1),
    Sketcher.Constraint("Coincident", 10, 3, -1, 1),
    Sketcher.Constraint("Coincident", 14, 3, -1, 1),
    Sketcher.Constraint("Coincident", 16, 3, -1, 1),
    Sketcher.Constraint("Coincident", 5, 3, 3, 3),
    Sketcher.Constraint("Coincident", 11, 3, 9, 3),
    Sketcher.Constraint("Coincident", 17, 3, 15, 3),
    Sketcher.Constraint("Equal", 2, 4),
    Sketcher.Constraint("Equal", 4, 8),
    Sketcher.Constraint("Equal", 3, 9),
    Sketcher.Constraint("Equal", 8, 10),
    Sketcher.Constraint("Equal", 5, 11),
    Sketcher.Constraint("Equal", 10, 14),
    Sketcher.Constraint("Equal", 9, 15),
    Sketcher.Constraint("Equal", 14, 16),
    Sketcher.Constraint("Equal", 11, 17),
    Sketcher.Constraint("Symmetric", 9, 3, 15, 3, -2),
    Sketcher.Constraint("PointOnObject", 3, 3, -2),
    Sketcher.Constraint("Equal", 0, 6),
    Sketcher.Constraint("Equal", 1, 7),
    Sketcher.Constraint("Equal", 6, 12),
    Sketcher.Constraint("Equal", 7, 13),
    Sketcher.Constraint("Radius", 2, 69.0),
    Sketcher.Constraint("Radius", 3, 27.0),
    Sketcher.Constraint("Radius", 5, 23.5),
    Sketcher.Constraint("Angle", 0, Q("-93 deg")),
    Sketcher.Constraint("Angle", 1, Q("-24 deg")),
    Sketcher.Constraint("Angle", 6, Q("147 deg")),
    Sketcher.Constraint("Angle", 7, Q("-144 deg")),
    Sketcher.Constraint("Angle", 12, Q("27 deg")),
    Sketcher.Constraint("Angle", 13, Q("96 deg")),
    Sketcher.Constraint("DistanceY", 3, 3, -1, 1, 78.75),
    Sketcher.Constraint("DistanceY", -1, 1, 9, 3, 39.375),
    Sketcher.Constraint("DistanceX", 9, 3, -1, 1, 68.199501),
    Sketcher.Constraint("DistanceY", 1, 2, 0, 2, 6.239401),
    Sketcher.Constraint("DistanceY", 6, 2, 8, 1, 18.8305),
])
pocket3 = body.newObject("PartDesign::Pocket", "Pocket002")
pocket3.Profile = sketch10
pocket3.Length = 9

doc.recompute()
